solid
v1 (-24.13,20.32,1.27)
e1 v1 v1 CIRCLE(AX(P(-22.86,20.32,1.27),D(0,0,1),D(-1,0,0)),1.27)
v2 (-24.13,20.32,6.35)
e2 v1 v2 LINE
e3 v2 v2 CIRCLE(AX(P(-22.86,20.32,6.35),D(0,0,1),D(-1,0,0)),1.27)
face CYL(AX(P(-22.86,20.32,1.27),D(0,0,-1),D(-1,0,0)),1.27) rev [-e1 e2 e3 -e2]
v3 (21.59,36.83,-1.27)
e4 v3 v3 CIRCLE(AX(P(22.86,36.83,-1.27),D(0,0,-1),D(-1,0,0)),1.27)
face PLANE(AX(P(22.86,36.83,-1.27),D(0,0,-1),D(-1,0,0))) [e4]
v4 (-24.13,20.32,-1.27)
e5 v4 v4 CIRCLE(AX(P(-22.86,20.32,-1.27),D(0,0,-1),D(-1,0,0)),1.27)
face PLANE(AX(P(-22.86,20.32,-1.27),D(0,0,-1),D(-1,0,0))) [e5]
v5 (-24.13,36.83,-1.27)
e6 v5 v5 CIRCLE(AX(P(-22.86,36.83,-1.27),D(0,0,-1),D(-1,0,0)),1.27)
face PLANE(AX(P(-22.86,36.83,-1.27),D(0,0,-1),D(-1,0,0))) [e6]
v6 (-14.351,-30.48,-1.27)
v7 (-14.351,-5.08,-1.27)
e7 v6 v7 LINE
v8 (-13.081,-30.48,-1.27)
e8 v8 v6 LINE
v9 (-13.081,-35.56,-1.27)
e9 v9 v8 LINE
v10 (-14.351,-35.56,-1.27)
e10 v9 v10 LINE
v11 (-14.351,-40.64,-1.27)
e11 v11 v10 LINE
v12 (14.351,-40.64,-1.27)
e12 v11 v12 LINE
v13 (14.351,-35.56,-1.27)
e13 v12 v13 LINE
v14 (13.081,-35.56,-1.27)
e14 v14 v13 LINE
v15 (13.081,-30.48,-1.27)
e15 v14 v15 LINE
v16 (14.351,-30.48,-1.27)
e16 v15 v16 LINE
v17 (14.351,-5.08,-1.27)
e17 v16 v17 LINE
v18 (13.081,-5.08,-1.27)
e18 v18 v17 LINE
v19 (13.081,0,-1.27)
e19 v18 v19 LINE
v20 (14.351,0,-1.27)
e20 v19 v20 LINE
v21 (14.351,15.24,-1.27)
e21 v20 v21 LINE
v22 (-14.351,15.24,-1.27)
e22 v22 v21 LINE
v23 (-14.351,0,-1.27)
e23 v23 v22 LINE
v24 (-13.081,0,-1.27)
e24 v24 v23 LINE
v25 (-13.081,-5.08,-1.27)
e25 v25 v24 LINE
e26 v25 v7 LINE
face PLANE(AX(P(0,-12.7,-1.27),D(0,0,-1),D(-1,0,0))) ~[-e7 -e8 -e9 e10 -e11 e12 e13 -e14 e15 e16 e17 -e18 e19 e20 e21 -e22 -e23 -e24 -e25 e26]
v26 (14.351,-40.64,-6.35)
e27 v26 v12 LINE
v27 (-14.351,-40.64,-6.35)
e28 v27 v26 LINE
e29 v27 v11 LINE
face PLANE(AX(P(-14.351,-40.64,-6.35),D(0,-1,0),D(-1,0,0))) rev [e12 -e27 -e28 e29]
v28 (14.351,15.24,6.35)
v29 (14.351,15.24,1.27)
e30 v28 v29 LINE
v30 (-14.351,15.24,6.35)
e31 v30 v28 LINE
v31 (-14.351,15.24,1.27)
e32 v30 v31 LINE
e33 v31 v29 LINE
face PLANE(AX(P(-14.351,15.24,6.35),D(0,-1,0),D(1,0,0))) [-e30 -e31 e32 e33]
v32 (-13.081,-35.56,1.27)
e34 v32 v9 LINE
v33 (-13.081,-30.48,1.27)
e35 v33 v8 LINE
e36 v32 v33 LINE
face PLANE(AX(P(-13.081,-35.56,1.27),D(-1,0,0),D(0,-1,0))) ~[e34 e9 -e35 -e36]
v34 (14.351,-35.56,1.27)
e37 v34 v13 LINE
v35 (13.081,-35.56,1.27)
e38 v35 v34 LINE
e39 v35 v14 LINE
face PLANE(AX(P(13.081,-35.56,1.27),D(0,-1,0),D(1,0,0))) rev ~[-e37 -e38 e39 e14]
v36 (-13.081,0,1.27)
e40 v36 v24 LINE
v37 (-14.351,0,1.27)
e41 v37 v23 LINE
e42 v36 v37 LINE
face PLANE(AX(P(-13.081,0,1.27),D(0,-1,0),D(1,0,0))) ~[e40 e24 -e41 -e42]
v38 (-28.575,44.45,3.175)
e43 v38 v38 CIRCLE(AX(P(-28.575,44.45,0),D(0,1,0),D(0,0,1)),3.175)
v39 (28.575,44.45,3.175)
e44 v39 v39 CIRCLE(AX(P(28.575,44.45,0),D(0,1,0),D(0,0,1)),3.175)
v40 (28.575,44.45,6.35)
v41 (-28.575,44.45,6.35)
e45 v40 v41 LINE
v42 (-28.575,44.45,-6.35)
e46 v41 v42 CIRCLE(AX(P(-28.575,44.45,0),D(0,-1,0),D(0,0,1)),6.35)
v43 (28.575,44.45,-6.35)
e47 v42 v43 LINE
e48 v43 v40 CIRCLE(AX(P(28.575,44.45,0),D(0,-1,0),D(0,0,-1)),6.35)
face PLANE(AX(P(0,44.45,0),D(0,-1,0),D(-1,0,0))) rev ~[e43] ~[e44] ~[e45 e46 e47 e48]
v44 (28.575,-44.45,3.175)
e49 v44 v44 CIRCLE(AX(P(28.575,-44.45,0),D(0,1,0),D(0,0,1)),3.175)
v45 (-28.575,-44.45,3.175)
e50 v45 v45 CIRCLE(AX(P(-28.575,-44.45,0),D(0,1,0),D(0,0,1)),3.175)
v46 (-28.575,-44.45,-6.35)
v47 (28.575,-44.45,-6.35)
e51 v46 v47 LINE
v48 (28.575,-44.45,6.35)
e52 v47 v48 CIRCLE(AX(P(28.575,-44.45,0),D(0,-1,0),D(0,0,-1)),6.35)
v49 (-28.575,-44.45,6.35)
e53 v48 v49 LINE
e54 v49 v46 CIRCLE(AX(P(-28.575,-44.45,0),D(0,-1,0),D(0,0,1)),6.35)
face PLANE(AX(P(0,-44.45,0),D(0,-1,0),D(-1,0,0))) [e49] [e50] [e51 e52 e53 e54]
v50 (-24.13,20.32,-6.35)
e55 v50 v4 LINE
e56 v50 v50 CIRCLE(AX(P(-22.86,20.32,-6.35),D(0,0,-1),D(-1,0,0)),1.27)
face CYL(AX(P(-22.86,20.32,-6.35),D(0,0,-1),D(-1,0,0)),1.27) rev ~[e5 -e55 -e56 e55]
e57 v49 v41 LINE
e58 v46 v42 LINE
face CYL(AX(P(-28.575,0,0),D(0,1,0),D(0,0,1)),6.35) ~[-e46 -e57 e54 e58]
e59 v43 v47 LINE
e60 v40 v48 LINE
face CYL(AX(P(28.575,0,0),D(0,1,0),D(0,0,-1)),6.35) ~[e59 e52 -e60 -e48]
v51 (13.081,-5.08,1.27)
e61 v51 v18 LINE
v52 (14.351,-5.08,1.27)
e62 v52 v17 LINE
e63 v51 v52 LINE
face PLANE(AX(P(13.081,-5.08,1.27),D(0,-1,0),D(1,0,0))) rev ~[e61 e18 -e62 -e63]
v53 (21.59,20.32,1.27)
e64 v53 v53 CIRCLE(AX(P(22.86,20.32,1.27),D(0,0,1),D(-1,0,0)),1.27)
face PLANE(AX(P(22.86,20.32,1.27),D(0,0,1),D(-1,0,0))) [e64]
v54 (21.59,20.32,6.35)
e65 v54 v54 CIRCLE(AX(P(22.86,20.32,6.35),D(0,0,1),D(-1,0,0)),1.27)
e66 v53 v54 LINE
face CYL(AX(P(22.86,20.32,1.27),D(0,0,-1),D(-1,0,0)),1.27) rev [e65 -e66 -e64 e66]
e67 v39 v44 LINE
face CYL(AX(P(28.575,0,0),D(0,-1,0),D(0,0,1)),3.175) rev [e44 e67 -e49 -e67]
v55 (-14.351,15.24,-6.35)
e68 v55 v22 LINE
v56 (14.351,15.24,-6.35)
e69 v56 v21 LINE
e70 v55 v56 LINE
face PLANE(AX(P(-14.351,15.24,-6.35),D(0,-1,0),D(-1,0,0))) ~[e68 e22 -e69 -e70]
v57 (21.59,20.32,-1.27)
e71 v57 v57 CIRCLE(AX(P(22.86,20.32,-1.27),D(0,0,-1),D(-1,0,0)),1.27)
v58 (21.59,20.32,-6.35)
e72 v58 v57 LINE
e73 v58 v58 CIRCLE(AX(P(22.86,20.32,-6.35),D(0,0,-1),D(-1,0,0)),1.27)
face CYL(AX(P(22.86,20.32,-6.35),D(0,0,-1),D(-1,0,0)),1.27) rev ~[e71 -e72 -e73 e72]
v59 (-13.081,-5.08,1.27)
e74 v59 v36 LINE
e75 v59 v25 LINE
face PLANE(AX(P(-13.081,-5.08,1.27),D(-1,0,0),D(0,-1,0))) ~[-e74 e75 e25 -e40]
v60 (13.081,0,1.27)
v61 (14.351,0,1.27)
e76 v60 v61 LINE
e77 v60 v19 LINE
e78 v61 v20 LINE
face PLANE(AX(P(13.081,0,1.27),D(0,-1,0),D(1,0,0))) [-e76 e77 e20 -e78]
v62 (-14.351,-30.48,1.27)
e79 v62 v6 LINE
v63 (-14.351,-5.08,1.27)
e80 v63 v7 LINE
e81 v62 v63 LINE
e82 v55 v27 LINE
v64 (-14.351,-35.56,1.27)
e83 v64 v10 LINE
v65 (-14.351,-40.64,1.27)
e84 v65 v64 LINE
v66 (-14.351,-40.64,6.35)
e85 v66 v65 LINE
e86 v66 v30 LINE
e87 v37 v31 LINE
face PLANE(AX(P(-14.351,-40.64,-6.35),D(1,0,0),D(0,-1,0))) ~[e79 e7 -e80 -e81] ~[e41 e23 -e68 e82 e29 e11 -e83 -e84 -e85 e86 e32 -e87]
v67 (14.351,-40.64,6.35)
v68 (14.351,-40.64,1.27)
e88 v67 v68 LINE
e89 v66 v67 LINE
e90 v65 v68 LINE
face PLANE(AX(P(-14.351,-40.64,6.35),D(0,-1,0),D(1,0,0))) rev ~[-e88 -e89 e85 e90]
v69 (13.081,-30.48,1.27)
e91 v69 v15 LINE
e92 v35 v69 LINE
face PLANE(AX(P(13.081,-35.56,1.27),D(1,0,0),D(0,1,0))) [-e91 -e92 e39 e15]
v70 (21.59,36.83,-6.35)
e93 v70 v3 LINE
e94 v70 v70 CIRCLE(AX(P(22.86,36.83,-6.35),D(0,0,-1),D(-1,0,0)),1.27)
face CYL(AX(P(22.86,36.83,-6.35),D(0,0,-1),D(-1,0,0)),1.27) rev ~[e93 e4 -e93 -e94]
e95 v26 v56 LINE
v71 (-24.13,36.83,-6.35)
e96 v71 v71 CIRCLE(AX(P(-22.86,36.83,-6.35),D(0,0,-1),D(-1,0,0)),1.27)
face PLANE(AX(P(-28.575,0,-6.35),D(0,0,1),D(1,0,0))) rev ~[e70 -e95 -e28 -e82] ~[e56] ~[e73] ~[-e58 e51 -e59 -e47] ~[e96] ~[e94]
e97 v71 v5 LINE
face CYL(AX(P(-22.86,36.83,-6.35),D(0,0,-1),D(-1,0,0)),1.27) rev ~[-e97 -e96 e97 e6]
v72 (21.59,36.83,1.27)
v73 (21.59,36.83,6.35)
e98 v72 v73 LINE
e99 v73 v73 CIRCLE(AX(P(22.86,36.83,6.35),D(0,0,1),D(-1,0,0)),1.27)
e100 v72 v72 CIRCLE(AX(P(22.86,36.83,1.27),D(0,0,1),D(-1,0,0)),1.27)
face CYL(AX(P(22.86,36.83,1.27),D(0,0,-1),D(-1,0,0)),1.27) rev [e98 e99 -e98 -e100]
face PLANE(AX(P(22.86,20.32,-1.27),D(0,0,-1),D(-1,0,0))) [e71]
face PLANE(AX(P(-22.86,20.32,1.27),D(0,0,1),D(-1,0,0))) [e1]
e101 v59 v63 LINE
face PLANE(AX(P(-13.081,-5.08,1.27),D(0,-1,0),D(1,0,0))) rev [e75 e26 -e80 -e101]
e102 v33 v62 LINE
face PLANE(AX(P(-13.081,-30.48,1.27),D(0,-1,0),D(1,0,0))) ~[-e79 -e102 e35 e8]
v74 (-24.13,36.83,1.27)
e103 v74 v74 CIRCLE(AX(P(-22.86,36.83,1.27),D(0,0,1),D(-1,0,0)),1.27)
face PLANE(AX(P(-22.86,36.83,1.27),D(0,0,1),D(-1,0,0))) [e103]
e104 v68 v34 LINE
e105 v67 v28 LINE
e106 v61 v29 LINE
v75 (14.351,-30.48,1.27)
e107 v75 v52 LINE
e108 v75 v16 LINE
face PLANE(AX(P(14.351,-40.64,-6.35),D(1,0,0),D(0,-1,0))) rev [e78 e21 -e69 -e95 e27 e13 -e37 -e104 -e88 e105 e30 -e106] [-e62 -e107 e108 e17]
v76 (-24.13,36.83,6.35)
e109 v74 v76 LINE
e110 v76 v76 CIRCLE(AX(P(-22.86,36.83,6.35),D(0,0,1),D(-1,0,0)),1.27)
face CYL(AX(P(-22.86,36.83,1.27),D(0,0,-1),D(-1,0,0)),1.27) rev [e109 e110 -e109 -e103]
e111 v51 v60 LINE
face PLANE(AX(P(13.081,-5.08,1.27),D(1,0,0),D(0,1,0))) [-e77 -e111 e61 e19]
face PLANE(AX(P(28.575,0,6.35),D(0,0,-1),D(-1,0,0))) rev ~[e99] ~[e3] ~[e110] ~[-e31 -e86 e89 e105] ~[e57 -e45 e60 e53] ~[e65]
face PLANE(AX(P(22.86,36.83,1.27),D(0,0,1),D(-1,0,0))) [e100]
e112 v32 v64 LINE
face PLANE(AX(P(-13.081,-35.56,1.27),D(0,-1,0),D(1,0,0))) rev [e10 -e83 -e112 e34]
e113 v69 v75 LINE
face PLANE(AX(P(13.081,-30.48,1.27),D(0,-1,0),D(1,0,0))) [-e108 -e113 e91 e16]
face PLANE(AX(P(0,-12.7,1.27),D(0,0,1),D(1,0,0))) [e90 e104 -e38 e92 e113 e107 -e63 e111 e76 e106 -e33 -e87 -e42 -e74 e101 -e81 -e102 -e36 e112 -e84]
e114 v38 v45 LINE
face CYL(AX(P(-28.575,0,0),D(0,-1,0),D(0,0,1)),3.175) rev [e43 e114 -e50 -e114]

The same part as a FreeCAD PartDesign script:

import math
import FreeCAD as App
import Part
import Sketcher
from FreeCAD import Vector
Q = App.Units.Quantity


def add_polygon(sketch, points):
    """Adds a closed chain of lines whose ends are joined by coincident constraints."""
    first, n = sketch.GeometryCount, len(points)
    for a, b in zip(points, points[1:] + points[:1]):
        sketch.addGeometry(Part.LineSegment(App.Vector(*a, 0), App.Vector(*b, 0)), False)
    for i in range(n):
        sketch.addConstraint(Sketcher.Constraint("Coincident", first + i, 2, first + (i + 1) % n, 1))

doc = App.newDocument("Part")
body = doc.addObject("PartDesign::Body", "Body")

# Sketch on XZ plane
sketch1 = doc.addObject("Sketcher::SketchObject", "Sketch")
body.addObject(sketch1)
sketch1.AttachmentSupport = (doc.XZ_Plane, [""])
sketch1.MapMode = "FlatFace"
sketch1.addGeometry(Part.LineSegment(Vector(28.6, -6.3, 0), Vector(-28.6, -6.3, 0)), False)
sketch1.addGeometry(Part.ArcOfCircle(Part.Circle(Vector(-28.6, 0, 0), Vector(0, 0, 1), 6.3), math.radians(90), math.radians(270)), False)
sketch1.addGeometry(Part.LineSegment(Vector(-28.6, 6.3, 0), Vector(28.6, 6.3, 0)), False)
sketch1.addGeometry(Part.ArcOfCircle(Part.Circle(Vector(28.6, 0, 0), Vector(0, 0, 1), 6.3), math.radians(-90), math.radians(90)), False)
sketch1.addGeometry(Part.Circle(Vector(28.6, 0, 0), Vector(0, 0, 1), 3.2), False)
sketch1.addGeometry(Part.Circle(Vector(-28.6, 0, 0), Vector(0, 0, 1), 3.2), False)
sketch1.addConstraint(Sketcher.Constraint("Tangent", 0, 2, 1, 2))
sketch1.addConstraint(Sketcher.Constraint("Tangent", 1, 1, 2, 1))
sketch1.addConstraint(Sketcher.Constraint("Tangent", 2, 2, 3, 2))
sketch1.addConstraint(Sketcher.Constraint("Tangent", 3, 1, 0, 1))
sketch1.addConstraint(Sketcher.Constraint("Horizontal", 0))
sketch1.addConstraint(Sketcher.Constraint("Horizontal", 2))
sketch1.addConstraint(Sketcher.Constraint("Coincident", 4, 3, 3, 3))
sketch1.addConstraint(Sketcher.Constraint("Coincident", 5, 3, 1, 3))
sketch1.addConstraint(Sketcher.Constraint("Equal", 4, 5))
sketch1.addConstraint(Sketcher.Constraint("Symmetric", 1, 3, 3, 3, -1, 1))
sketch1.addConstraint(Sketcher.Constraint("Diameter", 4, Q("0.25 in")))
sketch1.addConstraint(Sketcher.Constraint("Radius", 1, Q("0.25 in")))
sketch1.addConstraint(Sketcher.Constraint("DistanceX", 0, 2, 0, 1, Q("2.25 in")))
pad1 = doc.addObject("PartDesign::Pad", "Pad")
body.addObject(pad1)
pad1.Profile = sketch1
pad1.Length = Q("3.5 in")
pad1.Midplane = True

# Sketch on XY plane
sketch2 = doc.addObject("Sketcher::SketchObject", "Sketch001")
body.addObject(sketch2)
sketch2.AttachmentSupport = (doc.XY_Plane, [""])
sketch2.MapMode = "FlatFace"
sketch2.AttachmentOffset = App.Placement(Vector(0, 0, -0.25 * 25.4), App.Rotation())
sketch2.addGeometry(Part.Circle(Vector(-22.9, 36.8, 0), Vector(0, 0, 1), 1.3), False)
sketch2.addGeometry(Part.Circle(Vector(-22.9, 20.3, 0), Vector(0, 0, 1), 1.3), False)
sketch2.addGeometry(Part.Circle(Vector(22.9, 36.8, 0), Vector(0, 0, 1), 1.3), False)
sketch2.addGeometry(Part.Circle(Vector(22.9, 20.3, 0), Vector(0, 0, 1), 1.3), False)
sketch2.addConstraint(Sketcher.Constraint("Equal", 0, 1))
sketch2.addConstraint(Sketcher.Constraint("Equal", 1, 2))
sketch2.addConstraint(Sketcher.Constraint("Equal", 2, 3))
sketch2.addConstraint(Sketcher.Constraint("Symmetric", 0, 3, 2, 3, -2))
sketch2.addConstraint(Sketcher.Constraint("Symmetric", 1, 3, 3, 3, -2))
sketch2.addConstraint(Sketcher.Constraint("Vertical", 0, 3, 1, 3))
sketch2.addConstraint(Sketcher.Constraint("Diameter", 0, Q("0.1 in")))
sketch2.addConstraint(Sketcher.Constraint("DistanceX", 0, 3, -1, 1, Q("0.9 in")))
sketch2.addConstraint(Sketcher.Constraint("DistanceY", -1, 1, 1, 3, Q("0.8 in")))
sketch2.addConstraint(Sketcher.Constraint("DistanceY", -1, 1, 0, 3, Q("1.45 in")))
pocket1 = doc.addObject("PartDesign::Pocket", "Pocket")
body.addObject(pocket1)
pocket1.Profile = sketch2
pocket1.Length = Q("0.2 in")
pocket1.Reversed = True

# Sketch on XY plane
sketch3 = doc.addObject("Sketcher::SketchObject", "Sketch002")
body.addObject(sketch3)
sketch3.AttachmentSupport = (doc.XY_Plane, [""])
sketch3.MapMode = "FlatFace"
sketch3.AttachmentOffset = App.Placement(Vector(0, 0, 0.05 * 25.4), App.Rotation())
sketch3.addGeometry(Part.Circle(Vector(22.9, 36.8, 0), Vector(0, 0, 1), 1.3), False)
sketch3.addGeometry(Part.Circle(Vector(22.9, 20.3, 0), Vector(0, 0, 1), 1.3), False)
sketch3.addGeometry(Part.Circle(Vector(-22.9, 36.8, 0), Vector(0, 0, 1), 1.3), False)
sketch3.addGeometry(Part.Circle(Vector(-22.9, 20.3, 0), Vector(0, 0, 1), 1.3), False)
sketch3.addConstraint(Sketcher.Constraint("Equal", 0, 1))
sketch3.addConstraint(Sketcher.Constraint("Equal", 1, 2))
sketch3.addConstraint(Sketcher.Constraint("Equal", 2, 3))
sketch3.addConstraint(Sketcher.Constraint("Symmetric", 0, 3, 2, 3, -2))
sketch3.addConstraint(Sketcher.Constraint("Symmetric", 1, 3, 3, 3, -2))
sketch3.addConstraint(Sketcher.Constraint("Vertical", 0, 3, 1, 3))
sketch3.addConstraint(Sketcher.Constraint("Diameter", 0, Q("0.1 in")))
sketch3.addConstraint(Sketcher.Constraint("DistanceX", -1, 1, 0, 3, Q("0.9 in")))
sketch3.addConstraint(Sketcher.Constraint("DistanceY", -1, 1, 1, 3, Q("0.8 in")))
sketch3.addConstraint(Sketcher.Constraint("DistanceY", -1, 1, 0, 3, Q("1.45 in")))
pocket2 = doc.addObject("PartDesign::Pocket", "Pocket001")
body.addObject(pocket2)
pocket2.Profile = sketch3
pocket2.Length = Q("0.2 in")
pocket2.Reversed = True

# Sketch on XY plane
sketch4 = doc.addObject("Sketcher::SketchObject", "Sketch003")
body.addObject(sketch4)
sketch4.AttachmentSupport = (doc.XY_Plane, [""])
sketch4.MapMode = "FlatFace"
sketch4.AttachmentOffset = App.Placement(Vector(0, 0, 0.25 * 25.4), App.Rotation())
add_polygon(sketch4, [(-14, 15), (-14, -41), (14, -41), (14, 15)])  # lines 0-3
sketch4.addConstraint(Sketcher.Constraint("Vertical", 0))
sketch4.addConstraint(Sketcher.Constraint("Horizontal", 1))
sketch4.addConstraint(Sketcher.Constraint("Vertical", 2))
sketch4.addConstraint(Sketcher.Constraint("Horizontal", 3))
sketch4.addConstraint(Sketcher.Constraint("DistanceY", 0, 2, 0, 1, Q("2.2 in")))
sketch4.addConstraint(Sketcher.Constraint("DistanceX", 1, 1, 1, 2, Q("1.13 in")))
sketch4.addConstraint(Sketcher.Constraint("DistanceY", 0, 2, -1, 1, Q("1.6 in")))
sketch4.addConstraint(Sketcher.Constraint("DistanceX", 0, 2, -1, 1, Q("0.565 in")))
pocket3 = doc.addObject("PartDesign::Pocket", "Pocket002")
body.addObject(pocket3)
pocket3.Profile = sketch4
pocket3.Length = Q("0.2 in")
doc.recompute()

mirrored = doc.addObject("PartDesign::Mirrored", "Mirrored")
body.addObject(mirrored)
mirrored.Originals = [pocket3]
mirrored.MirrorPlane = (doc.XY_Plane, [""])
body.Tip = mirrored

# Sketch on XY plane
sketch5 = doc.addObject("Sketcher::SketchObject", "Sketch004")
body.addObject(sketch5)
sketch5.AttachmentSupport = (doc.XY_Plane, [""])
sketch5.MapMode = "FlatFace"
sketch5.AttachmentOffset = App.Placement(Vector(0, 0, 0.05 * 25.4), App.Rotation())
add_polygon(sketch5, [(13.1, -30.5), (13.1, -35.6), (14.4, -35.6), (14.4, -30.5)])  # lines 0-3
add_polygon(sketch5, [(13.1, 0), (13.1, -5.1), (14.4, -5.1), (14.4, 0)])  # lines 4-7
sketch5.addConstraint(Sketcher.Constraint("Vertical", 0))
sketch5.addConstraint(Sketcher.Constraint("Horizontal", 1))
sketch5.addConstraint(Sketcher.Constraint("Vertical", 2))
sketch5.addConstraint(Sketcher.Constraint("Horizontal", 3))
sketch5.addConstraint(Sketcher.Constraint("Vertical", 4))
sketch5.addConstraint(Sketcher.Constraint("Horizontal", 5))
sketch5.addConstraint(Sketcher.Constraint("Vertical", 6))
sketch5.addConstraint(Sketcher.Constraint("Horizontal", 7))
sketch5.addConstraint(Sketcher.Constraint("PointOnObject", 6, 2, -1))
sketch5.addConstraint(Sketcher.Constraint("Vertical", 3, 2, 4, 2))
sketch5.addConstraint(Sketcher.Constraint("Vertical", 2, 2, 5, 2))
sketch5.addConstraint(Sketcher.Constraint("Equal", 2, 4))
sketch5.addConstraint(Sketcher.Constraint("DistanceY", 0, 2, 0, 1, Q("0.2 in")))
sketch5.addConstraint(Sketcher.Constraint("DistanceY", 3, 2, 4, 2, Q("1 in")))
sketch5.addConstraint(Sketcher.Constraint("DistanceX", 1, 1, 1, 2, Q("0.05 in")))
sketch5.addConstraint(Sketcher.Constraint("DistanceX", -1, 1, 0, 2, Q("0.515 in")))
pocket4 = doc.addObject("PartDesign::Pocket", "Pocket003")
body.addObject(pocket4)
pocket4.Profile = sketch5
pocket4.Type = "ThroughAll"
doc.recompute()

mirrored2 = doc.addObject("PartDesign::Mirrored", "Mirrored001")
body.addObject(mirrored2)
mirrored2.Originals = [pocket4]
mirrored2.MirrorPlane = (doc.YZ_Plane, [""])
body.Tip = mirrored2

doc.recompute()
